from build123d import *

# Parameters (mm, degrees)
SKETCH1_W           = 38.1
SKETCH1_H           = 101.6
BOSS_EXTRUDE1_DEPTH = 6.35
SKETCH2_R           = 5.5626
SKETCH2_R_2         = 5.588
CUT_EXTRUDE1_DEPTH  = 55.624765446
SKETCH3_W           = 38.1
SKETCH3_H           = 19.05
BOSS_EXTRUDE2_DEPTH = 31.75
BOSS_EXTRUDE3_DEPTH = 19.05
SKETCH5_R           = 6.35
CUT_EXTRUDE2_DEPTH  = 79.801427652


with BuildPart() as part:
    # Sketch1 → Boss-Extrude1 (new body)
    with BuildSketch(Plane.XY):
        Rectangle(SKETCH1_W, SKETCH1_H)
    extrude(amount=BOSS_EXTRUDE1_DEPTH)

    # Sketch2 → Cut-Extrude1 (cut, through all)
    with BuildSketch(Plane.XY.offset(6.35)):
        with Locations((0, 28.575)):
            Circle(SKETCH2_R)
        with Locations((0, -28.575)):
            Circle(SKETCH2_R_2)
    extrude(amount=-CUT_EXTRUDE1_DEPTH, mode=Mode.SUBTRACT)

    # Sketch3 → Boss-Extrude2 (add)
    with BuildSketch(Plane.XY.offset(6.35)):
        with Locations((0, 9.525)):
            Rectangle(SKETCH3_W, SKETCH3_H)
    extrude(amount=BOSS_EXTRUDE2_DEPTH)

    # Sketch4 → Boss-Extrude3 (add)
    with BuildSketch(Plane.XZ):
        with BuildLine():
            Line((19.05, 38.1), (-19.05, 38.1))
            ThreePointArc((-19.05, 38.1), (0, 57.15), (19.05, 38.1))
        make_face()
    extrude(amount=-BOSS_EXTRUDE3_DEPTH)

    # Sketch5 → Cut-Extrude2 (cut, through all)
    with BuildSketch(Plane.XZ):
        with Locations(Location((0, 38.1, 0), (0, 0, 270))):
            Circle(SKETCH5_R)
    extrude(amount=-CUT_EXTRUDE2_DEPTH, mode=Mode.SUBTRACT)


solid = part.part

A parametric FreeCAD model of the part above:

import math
import FreeCAD as App
import Part
import Sketcher
from FreeCAD import Vector
Q = App.Units.Quantity

doc = App.newDocument("Part")
body = doc.addObject("PartDesign::Body", "Body")

# Sketch on XY plane
sketch1 = doc.addObject("Sketcher::SketchObject", "Sketch")
body.addObject(sketch1)
sketch1.AttachmentSupport = (doc.XY_Plane, [""])
sketch1.MapMode = "FlatFace"
sketch1.addGeometry(Part.LineSegment(Vector(-19, 51, 0), Vector(-19, -51, 0)), False)
sketch1.addGeometry(Part.LineSegment(Vector(-19, -51, 0), Vector(19, -51, 0)), False)
sketch1.addGeometry(Part.LineSegment(Vector(19, -51, 0), Vector(19, 51, 0)), False)
sketch1.addGeometry(Part.LineSegment(Vector(19, 51, 0), Vector(-19, 51, 0)), False)
sketch1.addConstraint(Sketcher.Constraint("Coincident", 0, 2, 1, 1))
sketch1.addConstraint(Sketcher.Constraint("Coincident", 1, 2, 2, 1))
sketch1.addConstraint(Sketcher.Constraint("Coincident", 2, 2, 3, 1))
sketch1.addConstraint(Sketcher.Constraint("Coincident", 3, 2, 0, 1))
sketch1.addConstraint(Sketcher.Constraint("Vertical", 0))
sketch1.addConstraint(Sketcher.Constraint("Horizontal", 1))
sketch1.addConstraint(Sketcher.Constraint("Vertical", 2))
sketch1.addConstraint(Sketcher.Constraint("Horizontal", 3))
sketch1.addConstraint(Sketcher.Constraint("Symmetric", 0, 2, 2, 2, -1, 1))
sketch1.addConstraint(Sketcher.Constraint("DistanceY", 0, 2, 0, 1, Q("4 in")))
sketch1.addConstraint(Sketcher.Constraint("DistanceX", 1, 1, 1, 2, Q("1.5 in")))
pad1 = doc.addObject("PartDesign::Pad", "Pad")
body.addObject(pad1)
pad1.Profile = sketch1
pad1.Length = Q("0.25 in")

# Sketch on XY plane
sketch2 = doc.addObject("Sketcher::SketchObject", "Sketch001")
body.addObject(sketch2)
sketch2.AttachmentSupport = (doc.XY_Plane, [""])
sketch2.MapMode = "FlatFace"
sketch2.AttachmentOffset = App.Placement(Vector(0, 0, 0.25 * 25.4), App.Rotation())
sketch2.addGeometry(Part.Circle(Vector(0, 29, 0), Vector(0, 0, 1), 6), False)
sketch2.addGeometry(Part.Circle(Vector(0, -29, 0), Vector(0, 0, 1), 6), False)
sketch2.addConstraint(Sketcher.Constraint("Symmetric", 0, 3, 1, 3, -1, 1))
sketch2.addConstraint(Sketcher.Constraint("PointOnObject", 0, 3, -2))
sketch2.addConstraint(Sketcher.Constraint("Diameter", 1, Q("0.44 in")))
sketch2.addConstraint(Sketcher.Constraint("Diameter", 0, Q("0.438 in")))
sketch2.addConstraint(Sketcher.Constraint("DistanceY", 1, 3, 0, 3, Q("2.25 in")))
pocket1 = doc.addObject("PartDesign::Pocket", "Pocket")
body.addObject(pocket1)
pocket1.Profile = sketch2
pocket1.Type = "ThroughAll"

# Sketch on XY plane
sketch3 = doc.addObject("Sketcher::SketchObject", "Sketch002")
body.addObject(sketch3)
sketch3.AttachmentSupport = (doc.XY_Plane, [""])
sketch3.MapMode = "FlatFace"
sketch3.AttachmentOffset = App.Placement(Vector(0, 0, 0.25 * 25.4), App.Rotation())
sketch3.addGeometry(Part.LineSegment(Vector(-19, 19, 0), Vector(-19, 0, 0)), False)
sketch3.addGeometry(Part.LineSegment(Vector(-19, 0, 0), Vector(19, 0, 0)), False)
sketch3.addGeometry(Part.LineSegment(Vector(19, 0, 0), Vector(19, 19, 0)), False)
sketch3.addGeometry(Part.LineSegment(Vector(19, 19, 0), Vector(-19, 19, 0)), False)
sketch3.addConstraint(Sketcher.Constraint("Coincident", 0, 2, 1, 1))
sketch3.addConstraint(Sketcher.Constraint("Coincident", 1, 2, 2, 1))
sketch3.addConstraint(Sketcher.Constraint("Coincident", 2, 2, 3, 1))
sketch3.addConstraint(Sketcher.Constraint("Coincident", 3, 2, 0, 1))
sketch3.addConstraint(Sketcher.Constraint("Vertical", 0))
sketch3.addConstraint(Sketcher.Constraint("Horizontal", 1))
sketch3.addConstraint(Sketcher.Constraint("Vertical", 2))
sketch3.addConstraint(Sketcher.Constraint("Horizontal", 3))
sketch3.addConstraint(Sketcher.Constraint("Symmetric", 0, 2, 1, 2, -1, 1))
sketch3.addConstraint(Sketcher.Constraint("DistanceX", 1, 1, 1, 2, Q("1.5 in")))
sketch3.addConstraint(Sketcher.Constraint("DistanceY", 0, 2, 0, 1, Q("0.75 in")))
pad2 = doc.addObject("PartDesign::Pad", "Pad001")
body.addObject(pad2)
pad2.Profile = sketch3
pad2.Length = Q("1.25 in")

# Sketch on XZ plane
sketch4 = doc.addObject("Sketcher::SketchObject", "Sketch003")
body.addObject(sketch4)
sketch4.AttachmentSupport = (doc.XZ_Plane, [""])
sketch4.MapMode = "FlatFace"
sketch4.addGeometry(Part.LineSegment(Vector(-19, 38, 0), Vector(19, 38, 0)), False)
sketch4.addGeometry(Part.ArcOfCircle(Part.Circle(Vector(0, 38, 0), Vector(0, 0, 1), 19), math.radians(0), math.radians(180)), False)
sketch4.addConstraint(Sketcher.Constraint("Coincident", 0, 1, 1, 2))
sketch4.addConstraint(Sketcher.Constraint("Coincident", 1, 1, 0, 2))
sketch4.addConstraint(Sketcher.Constraint("Horizontal", 0))
sketch4.addConstraint(Sketcher.Constraint("PointOnObject", 1, 3, -2))
sketch4.addConstraint(Sketcher.Constraint("Horizontal", 1, 3, 0, 1))
sketch4.addConstraint(Sketcher.Constraint("Radius", 1, Q("0.75 in")))
sketch4.addConstraint(Sketcher.Constraint("DistanceY", -1, 1, 1, 3, Q("1.5 in")))
pad3 = doc.addObject("PartDesign::Pad", "Pad002")
body.addObject(pad3)
pad3.Profile = sketch4
pad3.Length = Q("0.75 in")
pad3.Reversed = True

# Sketch on XZ plane
sketch5 = doc.addObject("Sketcher::SketchObject", "Sketch004")
body.addObject(sketch5)
sketch5.AttachmentSupport = (doc.XZ_Plane, [""])
sketch5.MapMode = "FlatFace"
sketch5.addGeometry(Part.Circle(Vector(0, 38, 0), Vector(0, 0, 1), 6), False)
sketch5.addConstraint(Sketcher.Constraint("PointOnObject", 0, 3, -2))
sketch5.addConstraint(Sketcher.Constraint("Diameter", 0, Q("0.5 in")))
sketch5.addConstraint(Sketcher.Constraint("DistanceY", -1, 1, 0, 3, Q("1.5 in")))
pocket2 = doc.addObject("PartDesign::Pocket", "Pocket001")
body.addObject(pocket2)
pocket2.Profile = sketch5
pocket2.Type = "ThroughAll"

doc.recompute()
